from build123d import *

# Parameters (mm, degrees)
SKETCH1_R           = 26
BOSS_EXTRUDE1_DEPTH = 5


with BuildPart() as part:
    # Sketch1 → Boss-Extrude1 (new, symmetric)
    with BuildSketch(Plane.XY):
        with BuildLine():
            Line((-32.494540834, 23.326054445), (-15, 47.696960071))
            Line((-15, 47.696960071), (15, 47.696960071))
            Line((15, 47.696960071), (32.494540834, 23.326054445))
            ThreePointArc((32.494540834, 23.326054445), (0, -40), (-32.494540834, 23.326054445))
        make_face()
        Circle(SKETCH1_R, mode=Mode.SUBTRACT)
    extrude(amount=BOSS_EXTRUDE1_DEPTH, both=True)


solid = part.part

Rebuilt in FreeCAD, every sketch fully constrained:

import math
import FreeCAD as App
import Part
import Sketcher

doc = App.newDocument("Part")
body = doc.addObject("PartDesign::Body", "Body")

# Sketch on XY plane
sketch1 = body.newObject("Sketcher::SketchObject", "Sketch")
sketch1.AttachmentSupport = (doc.getObject("XY_Plane"), [""])
sketch1.MapMode = "FlatFace"
sketch1.addGeometry([
    Part.LineSegment(App.Vector(-15, 48, 0), App.Vector(-32, 23, 0)),  # 0
    Part.ArcOfCircle(Part.Circle(App.Vector(0, 0, 0), App.Vector(0, 0, 1), 40), math.radians(144), math.radians(396)),  # 1
    Part.LineSegment(App.Vector(32, 23, 0), App.Vector(15, 48, 0)),  # 2
    Part.LineSegment(App.Vector(15, 48, 0), App.Vector(-15, 48, 0)),  # 3
    Part.Circle(App.Vector(0, 0, 0), App.Vector(0, 0, 1), 26),  # 4
], False)
sketch1.addConstraint([
    Sketcher.Constraint("Tangent", 0, 2, 1, 1),
    Sketcher.Constraint("Tangent", 1, 2, 2, 1),
    Sketcher.Constraint("Coincident", 2, 2, 3, 1),
    Sketcher.Constraint("Coincident", 3, 2, 0, 1),
    Sketcher.Constraint("Horizontal", 3),
    Sketcher.Constraint("Coincident", 1, 3, -1, 1),
    Sketcher.Constraint("Coincident", 4, 3, -1, 1),
    Sketcher.Constraint("Horizontal", 0, 2, 1, 2),
    Sketcher.Constraint("Diameter", 4, 52.0),
    Sketcher.Constraint("Radius", 1, 40.0),
    Sketcher.Constraint("DistanceX", 3, 2, 3, 1, 30.0),
    Sketcher.Constraint("Distance", 0, 30.0),
])
pad1 = body.newObject("PartDesign::Pad", "Pad")
pad1.Profile = sketch1
pad1.Length = 10
pad1.Midplane = True

doc.recompute()
